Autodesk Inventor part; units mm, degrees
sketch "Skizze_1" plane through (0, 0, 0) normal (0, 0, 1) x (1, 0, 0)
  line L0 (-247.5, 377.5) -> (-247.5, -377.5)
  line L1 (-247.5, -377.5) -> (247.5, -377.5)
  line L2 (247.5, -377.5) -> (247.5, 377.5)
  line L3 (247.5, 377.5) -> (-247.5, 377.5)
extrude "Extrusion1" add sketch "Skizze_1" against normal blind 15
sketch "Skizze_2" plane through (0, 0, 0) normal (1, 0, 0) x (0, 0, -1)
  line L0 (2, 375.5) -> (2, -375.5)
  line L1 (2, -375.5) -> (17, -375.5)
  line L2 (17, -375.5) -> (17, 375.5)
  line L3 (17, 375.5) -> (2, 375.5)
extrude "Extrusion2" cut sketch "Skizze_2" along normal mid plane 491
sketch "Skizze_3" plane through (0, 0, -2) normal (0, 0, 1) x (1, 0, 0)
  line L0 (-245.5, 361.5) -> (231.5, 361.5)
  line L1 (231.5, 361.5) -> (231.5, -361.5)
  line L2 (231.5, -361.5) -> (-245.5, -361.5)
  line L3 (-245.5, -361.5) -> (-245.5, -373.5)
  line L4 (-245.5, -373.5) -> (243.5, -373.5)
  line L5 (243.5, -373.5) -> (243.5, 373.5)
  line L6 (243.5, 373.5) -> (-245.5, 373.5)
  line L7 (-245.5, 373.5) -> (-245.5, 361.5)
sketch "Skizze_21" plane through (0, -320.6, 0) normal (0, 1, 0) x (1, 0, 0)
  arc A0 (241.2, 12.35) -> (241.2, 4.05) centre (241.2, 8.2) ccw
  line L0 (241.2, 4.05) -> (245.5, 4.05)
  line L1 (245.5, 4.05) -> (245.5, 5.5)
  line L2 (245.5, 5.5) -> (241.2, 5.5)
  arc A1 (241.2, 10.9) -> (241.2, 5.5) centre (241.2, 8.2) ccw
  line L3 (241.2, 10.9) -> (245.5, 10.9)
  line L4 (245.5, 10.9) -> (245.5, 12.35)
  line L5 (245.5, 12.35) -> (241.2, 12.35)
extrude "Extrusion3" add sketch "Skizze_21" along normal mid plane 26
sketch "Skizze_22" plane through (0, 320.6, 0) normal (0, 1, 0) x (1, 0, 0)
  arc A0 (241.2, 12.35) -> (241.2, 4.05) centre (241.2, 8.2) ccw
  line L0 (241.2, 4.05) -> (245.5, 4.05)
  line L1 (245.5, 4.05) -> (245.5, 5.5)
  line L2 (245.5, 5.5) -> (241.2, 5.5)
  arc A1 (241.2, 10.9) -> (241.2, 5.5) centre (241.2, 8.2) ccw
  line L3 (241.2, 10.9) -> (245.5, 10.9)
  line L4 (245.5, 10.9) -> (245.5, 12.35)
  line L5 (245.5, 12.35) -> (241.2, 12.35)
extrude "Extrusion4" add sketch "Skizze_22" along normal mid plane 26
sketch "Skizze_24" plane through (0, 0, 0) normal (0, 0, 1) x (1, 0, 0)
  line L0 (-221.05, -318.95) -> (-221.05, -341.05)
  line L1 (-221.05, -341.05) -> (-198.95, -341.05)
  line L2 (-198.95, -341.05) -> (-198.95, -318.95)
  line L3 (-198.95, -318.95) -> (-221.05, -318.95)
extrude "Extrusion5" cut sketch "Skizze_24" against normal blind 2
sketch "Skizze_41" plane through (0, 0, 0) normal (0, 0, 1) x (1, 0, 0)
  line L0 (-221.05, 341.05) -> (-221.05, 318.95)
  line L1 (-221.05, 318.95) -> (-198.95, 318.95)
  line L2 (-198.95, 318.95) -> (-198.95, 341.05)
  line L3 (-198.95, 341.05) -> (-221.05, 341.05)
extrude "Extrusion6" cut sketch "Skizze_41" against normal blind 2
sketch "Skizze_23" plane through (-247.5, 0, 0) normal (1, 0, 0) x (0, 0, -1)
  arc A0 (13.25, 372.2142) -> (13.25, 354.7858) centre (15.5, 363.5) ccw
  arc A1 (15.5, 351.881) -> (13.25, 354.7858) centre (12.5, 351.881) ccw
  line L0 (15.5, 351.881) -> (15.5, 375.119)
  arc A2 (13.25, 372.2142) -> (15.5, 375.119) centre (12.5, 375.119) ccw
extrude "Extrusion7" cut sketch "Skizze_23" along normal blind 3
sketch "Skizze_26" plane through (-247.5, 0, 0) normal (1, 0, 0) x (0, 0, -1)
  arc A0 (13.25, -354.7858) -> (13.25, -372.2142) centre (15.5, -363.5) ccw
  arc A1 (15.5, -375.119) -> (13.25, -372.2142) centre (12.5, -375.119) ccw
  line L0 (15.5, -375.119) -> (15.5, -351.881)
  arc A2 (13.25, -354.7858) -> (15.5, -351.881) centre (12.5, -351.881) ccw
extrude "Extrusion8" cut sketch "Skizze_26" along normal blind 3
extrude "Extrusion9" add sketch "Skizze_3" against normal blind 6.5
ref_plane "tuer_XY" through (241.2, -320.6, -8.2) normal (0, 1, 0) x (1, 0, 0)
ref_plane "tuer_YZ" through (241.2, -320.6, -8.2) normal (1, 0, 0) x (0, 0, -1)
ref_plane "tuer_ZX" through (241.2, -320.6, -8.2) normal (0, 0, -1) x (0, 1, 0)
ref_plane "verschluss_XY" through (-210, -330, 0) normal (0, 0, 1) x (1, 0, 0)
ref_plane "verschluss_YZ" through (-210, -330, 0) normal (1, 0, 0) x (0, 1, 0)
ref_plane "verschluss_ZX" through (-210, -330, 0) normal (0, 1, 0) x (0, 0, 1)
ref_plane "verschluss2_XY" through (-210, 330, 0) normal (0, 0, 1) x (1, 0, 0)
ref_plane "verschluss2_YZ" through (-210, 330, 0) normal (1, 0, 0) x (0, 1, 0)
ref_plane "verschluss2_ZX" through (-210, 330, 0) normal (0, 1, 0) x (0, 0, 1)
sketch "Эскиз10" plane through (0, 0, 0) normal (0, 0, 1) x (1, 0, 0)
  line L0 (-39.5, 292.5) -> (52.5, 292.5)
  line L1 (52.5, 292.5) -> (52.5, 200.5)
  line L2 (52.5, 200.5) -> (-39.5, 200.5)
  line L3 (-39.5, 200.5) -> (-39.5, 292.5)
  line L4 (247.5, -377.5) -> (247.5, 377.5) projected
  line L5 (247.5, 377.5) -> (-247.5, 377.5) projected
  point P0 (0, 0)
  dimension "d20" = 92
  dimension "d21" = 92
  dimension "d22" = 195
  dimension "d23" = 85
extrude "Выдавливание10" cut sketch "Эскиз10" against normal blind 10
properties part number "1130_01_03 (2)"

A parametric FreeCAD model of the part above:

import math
import FreeCAD as App
import Part
import Sketcher
from FreeCAD import Vector

doc = App.newDocument("Part")
body = doc.addObject("PartDesign::Body", "Body")

# Sketch on XY plane
sketch1 = body.newObject("Sketcher::SketchObject", "Sketch")
sketch1.AttachmentSupport = (doc.getObject("XY_Plane"), [""])
sketch1.MapMode = "FlatFace"
sketch1.addGeometry([
    Part.LineSegment(Vector(248, 378, 0), Vector(-248, 378, 0)),
    Part.LineSegment(Vector(-248, 378, 0), Vector(-248, -378, 0)),
    Part.LineSegment(Vector(-248, -378, 0), Vector(248, -378, 0)),
    Part.LineSegment(Vector(248, -378, 0), Vector(248, 378, 0)),
], False)
sketch1.addConstraint([
    Sketcher.Constraint("Coincident", 0, 2, 1, 1),
    Sketcher.Constraint("Coincident", 1, 2, 2, 1),
    Sketcher.Constraint("Coincident", 2, 2, 3, 1),
    Sketcher.Constraint("Coincident", 3, 2, 0, 1),
    Sketcher.Constraint("Horizontal", 0),
    Sketcher.Constraint("Vertical", 1),
    Sketcher.Constraint("Horizontal", 2),
    Sketcher.Constraint("Vertical", 3),
    Sketcher.Constraint("Symmetric", 0, 2, 2, 2, -1, 1),
    Sketcher.Constraint("DistanceX", 0, 2, 0, 1, 495.0),
    Sketcher.Constraint("DistanceY", 1, 2, 1, 1, 755.0),
])
pad1 = body.newObject("PartDesign::Pad", "Pad")
pad1.Profile = sketch1
pad1.Length = 15
pad1.Reversed = True

# Sketch on YZ plane
sketch2 = body.newObject("Sketcher::SketchObject", "Sketch001")
sketch2.AttachmentSupport = (doc.getObject("YZ_Plane"), [""])
sketch2.MapMode = "FlatFace"
sketch2.addGeometry([
    Part.LineSegment(Vector(376, -17, 0), Vector(376, -2, 0)),
    Part.LineSegment(Vector(376, -2, 0), Vector(-376, -2, 0)),
    Part.LineSegment(Vector(-376, -2, 0), Vector(-376, -17, 0)),
    Part.LineSegment(Vector(-376, -17, 0), Vector(376, -17, 0)),
], False)
sketch2.addConstraint([
    Sketcher.Constraint("Coincident", 0, 2, 1, 1),
    Sketcher.Constraint("Coincident", 1, 2, 2, 1),
    Sketcher.Constraint("Coincident", 2, 2, 3, 1),
    Sketcher.Constraint("Coincident", 3, 2, 0, 1),
    Sketcher.Constraint("Vertical", 0),
    Sketcher.Constraint("Horizontal", 1),
    Sketcher.Constraint("Vertical", 2),
    Sketcher.Constraint("Horizontal", 3),
    Sketcher.Constraint("DistanceX", 1, 2, 1, 1, 751.0),
    Sketcher.Constraint("DistanceY", 0, 1, 0, 2, 15.0),
    Sketcher.Constraint("DistanceY", 0, 2, -1, 1, 2.0),
    Sketcher.Constraint("DistanceX", -1, 1, 0, 2, 375.5),
])
pocket1 = body.newObject("PartDesign::Pocket", "Pocket")
pocket1.Profile = sketch2
pocket1.Length = 491
pocket1.Midplane = True

# Sketch on XZ plane
sketch3 = body.newObject("Sketcher::SketchObject", "Sketch002")
sketch3.AttachmentSupport = (doc.getObject("XZ_Plane"), [""])
sketch3.MapMode = "FlatFace"
sketch3.AttachmentOffset = App.Placement(Vector(0, 0, 320.6), App.Rotation())
sketch3.addGeometry([
    Part.LineSegment(Vector(245.5, -12.3, 0), Vector(241.2, -12.3, 0)),  # 0
    Part.ArcOfCircle(Part.Circle(Vector(241.2, -8.2, 0), Vector(0, 0, 1), 4.2), math.radians(90), math.radians(270)),  # 1
    Part.LineSegment(Vector(241.2, -4, 0), Vector(245.5, -4, 0)),  # 2
    Part.LineSegment(Vector(245.5, -4, 0), Vector(245.5, -5.5, 0)),  # 3
    Part.LineSegment(Vector(245.5, -5.5, 0), Vector(241.2, -5.5, 0)),  # 4
    Part.ArcOfCircle(Part.Circle(Vector(241.2, -8.2, 0), Vector(0, 0, 1), 2.7), math.radians(90), math.radians(270)),  # 5
    Part.LineSegment(Vector(241.2, -10.9, 0), Vector(245.5, -10.9, 0)),  # 6
    Part.LineSegment(Vector(245.5, -10.9, 0), Vector(245.5, -12.3, 0)),  # 7
], False)
sketch3.addConstraint([
    Sketcher.Constraint("Tangent", 0, 2, 1, 2),
    Sketcher.Constraint("Tangent", 1, 1, 2, 1),
    Sketcher.Constraint("Coincident", 2, 2, 3, 1),
    Sketcher.Constraint("Coincident", 3, 2, 4, 1),
    Sketcher.Constraint("Tangent", 4, 2, 5, 1),
    Sketcher.Constraint("Tangent", 5, 2, 6, 1),
    Sketcher.Constraint("Coincident", 6, 2, 7, 1),
    Sketcher.Constraint("Coincident", 7, 2, 0, 1),
    Sketcher.Constraint("Horizontal", 0),
    Sketcher.Constraint("Horizontal", 2),
    Sketcher.Constraint("Vertical", 3),
    Sketcher.Constraint("Horizontal", 4),
    Sketcher.Constraint("Horizontal", 6),
    Sketcher.Constraint("Vertical", 7),
    Sketcher.Constraint("Coincident", 5, 3, 1, 3),
    Sketcher.Constraint("Vertical", 3, 2, 6, 2),
    Sketcher.Constraint("Radius", 5, 2.7),
    Sketcher.Constraint("Radius", 1, 4.15),
    Sketcher.Constraint("DistanceX", 0, 2, 0, 1, 4.3),
    Sketcher.Constraint("DistanceX", -1, 1, 1, 3, 241.2),
    Sketcher.Constraint("DistanceY", 1, 3, -1, 1, 8.2),
])
pad2 = body.newObject("PartDesign::Pad", "Pad001")
pad2.Profile = sketch3
pad2.Length = 26
pad2.Midplane = True

# Sketch on XZ plane
sketch4 = body.newObject("Sketcher::SketchObject", "Sketch003")
sketch4.AttachmentSupport = (doc.getObject("XZ_Plane"), [""])
sketch4.MapMode = "FlatFace"
sketch4.AttachmentOffset = App.Placement(Vector(0, 0, -320.6), App.Rotation())
sketch4.addGeometry([
    Part.LineSegment(Vector(245.5, -12.3, 0), Vector(241.2, -12.3, 0)),  # 0
    Part.ArcOfCircle(Part.Circle(Vector(241.2, -8.2, 0), Vector(0, 0, 1), 4.2), math.radians(90), math.radians(270)),  # 1
    Part.LineSegment(Vector(241.2, -4, 0), Vector(245.5, -4, 0)),  # 2
    Part.LineSegment(Vector(245.5, -4, 0), Vector(245.5, -5.5, 0)),  # 3
    Part.LineSegment(Vector(245.5, -5.5, 0), Vector(241.2, -5.5, 0)),  # 4
    Part.ArcOfCircle(Part.Circle(Vector(241.2, -8.2, 0), Vector(0, 0, 1), 2.7), math.radians(90), math.radians(270)),  # 5
    Part.LineSegment(Vector(241.2, -10.9, 0), Vector(245.5, -10.9, 0)),  # 6
    Part.LineSegment(Vector(245.5, -10.9, 0), Vector(245.5, -12.3, 0)),  # 7
], False)
sketch4.addConstraint([
    Sketcher.Constraint("Tangent", 0, 2, 1, 2),
    Sketcher.Constraint("Tangent", 1, 1, 2, 1),
    Sketcher.Constraint("Coincident", 2, 2, 3, 1),
    Sketcher.Constraint("Coincident", 3, 2, 4, 1),
    Sketcher.Constraint("Tangent", 4, 2, 5, 1),
    Sketcher.Constraint("Tangent", 5, 2, 6, 1),
    Sketcher.Constraint("Coincident", 6, 2, 7, 1),
    Sketcher.Constraint("Coincident", 7, 2, 0, 1),
    Sketcher.Constraint("Horizontal", 0),
    Sketcher.Constraint("Horizontal", 2),
    Sketcher.Constraint("Vertical", 3),
    Sketcher.Constraint("Horizontal", 4),
    Sketcher.Constraint("Horizontal", 6),
    Sketcher.Constraint("Vertical", 7),
    Sketcher.Constraint("Coincident", 5, 3, 1, 3),
    Sketcher.Constraint("Vertical", 3, 2, 6, 2),
    Sketcher.Constraint("Radius", 5, 2.7),
    Sketcher.Constraint("Radius", 1, 4.15),
    Sketcher.Constraint("DistanceX", 0, 2, 0, 1, 4.3),
    Sketcher.Constraint("DistanceX", -1, 1, 1, 3, 241.2),
    Sketcher.Constraint("DistanceY", 1, 3, -1, 1, 8.2),
])
pad3 = body.newObject("PartDesign::Pad", "Pad002")
pad3.Profile = sketch4
pad3.Length = 26
pad3.Midplane = True

# Sketch on XY plane
sketch5 = body.newObject("Sketcher::SketchObject", "Sketch004")
sketch5.AttachmentSupport = (doc.getObject("XY_Plane"), [""])
sketch5.MapMode = "FlatFace"
sketch5.addGeometry([
    Part.LineSegment(Vector(-199, -319, 0), Vector(-221, -319, 0)),
    Part.LineSegment(Vector(-221, -319, 0), Vector(-221, -341, 0)),
    Part.LineSegment(Vector(-221, -341, 0), Vector(-199, -341, 0)),
    Part.LineSegment(Vector(-199, -341, 0), Vector(-199, -319, 0)),
], False)
sketch5.addConstraint([
    Sketcher.Constraint("Coincident", 0, 2, 1, 1),
    Sketcher.Constraint("Coincident", 1, 2, 2, 1),
    Sketcher.Constraint("Coincident", 2, 2, 3, 1),
    Sketcher.Constraint("Coincident", 3, 2, 0, 1),
    Sketcher.Constraint("Horizontal", 0),
    Sketcher.Constraint("Vertical", 1),
    Sketcher.Constraint("Horizontal", 2),
    Sketcher.Constraint("Vertical", 3),
    Sketcher.Constraint("Equal", 2, 1),
    Sketcher.Constraint("DistanceX", 0, 2, 0, 1, 22.1),
    Sketcher.Constraint("DistanceX", 0, 2, -1, 1, 221.05),
    Sketcher.Constraint("DistanceY", 0, 2, -1, 1, 318.95),
])
pocket2 = body.newObject("PartDesign::Pocket", "Pocket001")
pocket2.Profile = sketch5
pocket2.Length = 2

# Sketch on XY plane
sketch6 = body.newObject("Sketcher::SketchObject", "Sketch005")
sketch6.AttachmentSupport = (doc.getObject("XY_Plane"), [""])
sketch6.MapMode = "FlatFace"
sketch6.addGeometry([
    Part.LineSegment(Vector(-199, 341, 0), Vector(-221, 341, 0)),
    Part.LineSegment(Vector(-221, 341, 0), Vector(-221, 319, 0)),
    Part.LineSegment(Vector(-221, 319, 0), Vector(-199, 319, 0)),
    Part.LineSegment(Vector(-199, 319, 0), Vector(-199, 341, 0)),
], False)
sketch6.addConstraint([
    Sketcher.Constraint("Coincident", 0, 2, 1, 1),
    Sketcher.Constraint("Coincident", 1, 2, 2, 1),
    Sketcher.Constraint("Coincident", 2, 2, 3, 1),
    Sketcher.Constraint("Coincident", 3, 2, 0, 1),
    Sketcher.Constraint("Horizontal", 0),
    Sketcher.Constraint("Vertical", 1),
    Sketcher.Constraint("Horizontal", 2),
    Sketcher.Constraint("Vertical", 3),
    Sketcher.Constraint("Equal", 2, 1),
    Sketcher.Constraint("DistanceX", 0, 2, 0, 1, 22.1),
    Sketcher.Constraint("DistanceX", 0, 2, -1, 1, 221.05),
    Sketcher.Constraint("DistanceY", -1, 1, 0, 2, 341.05),
])
pocket3 = body.newObject("PartDesign::Pocket", "Pocket002")
pocket3.Profile = sketch6
pocket3.Length = 2

# Sketch on YZ plane
sketch7 = body.newObject("Sketcher::SketchObject", "Sketch006")
sketch7.AttachmentSupport = (doc.getObject("YZ_Plane"), [""])
sketch7.MapMode = "FlatFace"
sketch7.AttachmentOffset = App.Placement(Vector(0, 0, -247.5), App.Rotation())
sketch7.addGeometry([
    Part.ArcOfCircle(Part.Circle(Vector(375.1, -12.5, 0), Vector(0, 0, 1), 3), math.radians(-166), math.radians(-90)),
    Part.ArcOfCircle(Part.Circle(Vector(363.5, -15.5, 0), Vector(0, 0, 1), 9), math.radians(14), math.radians(166)),
    Part.ArcOfCircle(Part.Circle(Vector(351.9, -12.5, 0), Vector(0, 0, 1), 3), math.radians(-90), math.radians(-14)),
    Part.LineSegment(Vector(351.9, -15.5, 0), Vector(375.1, -15.5, 0)),
], False)
sketch7.addConstraint([
    Sketcher.Constraint("Tangent", 0, 1, 1, 1),
    Sketcher.Constraint("Tangent", 1, 2, 2, 2),
    Sketcher.Constraint("Tangent", 2, 1, 3, 1),
    Sketcher.Constraint("Tangent", 3, 2, 0, 2),
    Sketcher.Constraint("Horizontal", 3),
    Sketcher.Constraint("Equal", 0, 2),
    Sketcher.Constraint("Horizontal", 1, 3, 2, 1),
    Sketcher.Constraint("Radius", 0, 3.0),
    Sketcher.Constraint("Radius", 1, 9.0),
    Sketcher.Constraint("DistanceY", 0, 3, -1, 1, 12.5),
    Sketcher.Constraint("DistanceX", -1, 1, 1, 3, 363.5),
])
pocket4 = body.newObject("PartDesign::Pocket", "Pocket003")
pocket4.Profile = sketch7
pocket4.Length = 3
pocket4.Reversed = True

# Sketch on YZ plane
sketch8 = body.newObject("Sketcher::SketchObject", "Sketch007")
sketch8.AttachmentSupport = (doc.getObject("YZ_Plane"), [""])
sketch8.MapMode = "FlatFace"
sketch8.AttachmentOffset = App.Placement(Vector(0, 0, -247.5), App.Rotation())
sketch8.addGeometry([
    Part.ArcOfCircle(Part.Circle(Vector(-351.9, -12.5, 0), Vector(0, 0, 1), 3), math.radians(-166), math.radians(-90)),
    Part.ArcOfCircle(Part.Circle(Vector(-363.5, -15.5, 0), Vector(0, 0, 1), 9), math.radians(14), math.radians(166)),
    Part.ArcOfCircle(Part.Circle(Vector(-375.1, -12.5, 0), Vector(0, 0, 1), 3), math.radians(-90), math.radians(-14)),
    Part.LineSegment(Vector(-375.1, -15.5, 0), Vector(-351.9, -15.5, 0)),
], False)
sketch8.addConstraint([
    Sketcher.Constraint("Tangent", 0, 1, 1, 1),
    Sketcher.Constraint("Tangent", 1, 2, 2, 2),
    Sketcher.Constraint("Tangent", 2, 1, 3, 1),
    Sketcher.Constraint("Tangent", 3, 2, 0, 2),
    Sketcher.Constraint("Horizontal", 3),
    Sketcher.Constraint("Equal", 0, 2),
    Sketcher.Constraint("Horizontal", 1, 3, 2, 1),
    Sketcher.Constraint("Radius", 0, 3.0),
    Sketcher.Constraint("Radius", 1, 9.0),
    Sketcher.Constraint("DistanceY", 0, 3, -1, 1, 12.5),
    Sketcher.Constraint("DistanceX", 1, 3, -1, 1, 363.5),
])
pocket5 = body.newObject("PartDesign::Pocket", "Pocket004")
pocket5.Profile = sketch8
pocket5.Length = 3
pocket5.Reversed = True

# Sketch on XY plane
sketch9 = body.newObject("Sketcher::SketchObject", "Sketch008")
sketch9.AttachmentSupport = (doc.getObject("XY_Plane"), [""])
sketch9.MapMode = "FlatFace"
sketch9.AttachmentOffset = App.Placement(Vector(0, 0, -2), App.Rotation())
sketch9.addGeometry([
    Part.LineSegment(Vector(-246, 374, 0), Vector(-246, 362, 0)),  # 0
    Part.LineSegment(Vector(-246, 362, 0), Vector(232, 362, 0)),  # 1
    Part.LineSegment(Vector(232, 362, 0), Vector(232, -362, 0)),  # 2
    Part.LineSegment(Vector(232, -362, 0), Vector(-246, -362, 0)),  # 3
    Part.LineSegment(Vector(-246, -362, 0), Vector(-246, -374, 0)),  # 4
    Part.LineSegment(Vector(-246, -374, 0), Vector(244, -374, 0)),  # 5
    Part.LineSegment(Vector(244, -374, 0), Vector(244, 374, 0)),  # 6
    Part.LineSegment(Vector(244, 374, 0), Vector(-246, 374, 0)),  # 7
], False)
sketch9.addConstraint([
    Sketcher.Constraint("Coincident", 0, 2, 1, 1),
    Sketcher.Constraint("Coincident", 1, 2, 2, 1),
    Sketcher.Constraint("Coincident", 2, 2, 3, 1),
    Sketcher.Constraint("Coincident", 3, 2, 4, 1),
    Sketcher.Constraint("Coincident", 4, 2, 5, 1),
    Sketcher.Constraint("Coincident", 5, 2, 6, 1),
    Sketcher.Constraint("Coincident", 6, 2, 7, 1),
    Sketcher.Constraint("Coincident", 7, 2, 0, 1),
    Sketcher.Constraint("Vertical", 0),
    Sketcher.Constraint("Horizontal", 1),
    Sketcher.Constraint("Vertical", 2),
    Sketcher.Constraint("Horizontal", 3),
    Sketcher.Constraint("Vertical", 4),
    Sketcher.Constraint("Horizontal", 5),
    Sketcher.Constraint("Vertical", 6),
    Sketcher.Constraint("Horizontal", 7),
    Sketcher.Constraint("Symmetric", 0, 2, 3, 2, -1),
    Sketcher.Constraint("Equal", 0, 4),
    Sketcher.Constraint("DistanceX", 1, 1, 1, 2, 477.0),
    Sketcher.Constraint("DistanceX", 5, 1, 5, 2, 489.0),
    Sketcher.Constraint("DistanceY", 0, 2, 0, 1, 12.0),
    Sketcher.Constraint("DistanceY", 2, 2, 2, 1, 723.0),
    Sketcher.Constraint("DistanceX", 0, 2, -1, 1, 245.5),
])
pad4 = body.newObject("PartDesign::Pad", "Pad003")
pad4.Profile = sketch9
pad4.Length = 6.5
pad4.Reversed = True

# Sketch on XY plane
sketch10 = body.newObject("Sketcher::SketchObject", "Sketch009")
sketch10.AttachmentSupport = (doc.getObject("XY_Plane"), [""])
sketch10.MapMode = "FlatFace"
sketch10.addGeometry([
    Part.LineSegment(Vector(52, 292, 0), Vector(-40, 292, 0)),
    Part.LineSegment(Vector(-40, 292, 0), Vector(-40, 200, 0)),
    Part.LineSegment(Vector(-40, 200, 0), Vector(52, 200, 0)),
    Part.LineSegment(Vector(52, 200, 0), Vector(52, 292, 0)),
], False)
sketch10.addConstraint([
    Sketcher.Constraint("Coincident", 0, 2, 1, 1),
    Sketcher.Constraint("Coincident", 1, 2, 2, 1),
    Sketcher.Constraint("Coincident", 2, 2, 3, 1),
    Sketcher.Constraint("Coincident", 3, 2, 0, 1),
    Sketcher.Constraint("Horizontal", 0),
    Sketcher.Constraint("Vertical", 1),
    Sketcher.Constraint("Horizontal", 2),
    Sketcher.Constraint("Vertical", 3),
    Sketcher.Constraint("Equal", 2, 1),
    Sketcher.Constraint("DistanceX", 0, 2, 0, 1, 92.0),
    Sketcher.Constraint("DistanceX", 0, 2, -1, 1, 39.5),
    Sketcher.Constraint("DistanceY", -1, 1, 0, 2, 292.5),
])
pocket6 = body.newObject("PartDesign::Pocket", "Pocket005")
pocket6.Profile = sketch10
pocket6.Length = 10

doc.recompute()
